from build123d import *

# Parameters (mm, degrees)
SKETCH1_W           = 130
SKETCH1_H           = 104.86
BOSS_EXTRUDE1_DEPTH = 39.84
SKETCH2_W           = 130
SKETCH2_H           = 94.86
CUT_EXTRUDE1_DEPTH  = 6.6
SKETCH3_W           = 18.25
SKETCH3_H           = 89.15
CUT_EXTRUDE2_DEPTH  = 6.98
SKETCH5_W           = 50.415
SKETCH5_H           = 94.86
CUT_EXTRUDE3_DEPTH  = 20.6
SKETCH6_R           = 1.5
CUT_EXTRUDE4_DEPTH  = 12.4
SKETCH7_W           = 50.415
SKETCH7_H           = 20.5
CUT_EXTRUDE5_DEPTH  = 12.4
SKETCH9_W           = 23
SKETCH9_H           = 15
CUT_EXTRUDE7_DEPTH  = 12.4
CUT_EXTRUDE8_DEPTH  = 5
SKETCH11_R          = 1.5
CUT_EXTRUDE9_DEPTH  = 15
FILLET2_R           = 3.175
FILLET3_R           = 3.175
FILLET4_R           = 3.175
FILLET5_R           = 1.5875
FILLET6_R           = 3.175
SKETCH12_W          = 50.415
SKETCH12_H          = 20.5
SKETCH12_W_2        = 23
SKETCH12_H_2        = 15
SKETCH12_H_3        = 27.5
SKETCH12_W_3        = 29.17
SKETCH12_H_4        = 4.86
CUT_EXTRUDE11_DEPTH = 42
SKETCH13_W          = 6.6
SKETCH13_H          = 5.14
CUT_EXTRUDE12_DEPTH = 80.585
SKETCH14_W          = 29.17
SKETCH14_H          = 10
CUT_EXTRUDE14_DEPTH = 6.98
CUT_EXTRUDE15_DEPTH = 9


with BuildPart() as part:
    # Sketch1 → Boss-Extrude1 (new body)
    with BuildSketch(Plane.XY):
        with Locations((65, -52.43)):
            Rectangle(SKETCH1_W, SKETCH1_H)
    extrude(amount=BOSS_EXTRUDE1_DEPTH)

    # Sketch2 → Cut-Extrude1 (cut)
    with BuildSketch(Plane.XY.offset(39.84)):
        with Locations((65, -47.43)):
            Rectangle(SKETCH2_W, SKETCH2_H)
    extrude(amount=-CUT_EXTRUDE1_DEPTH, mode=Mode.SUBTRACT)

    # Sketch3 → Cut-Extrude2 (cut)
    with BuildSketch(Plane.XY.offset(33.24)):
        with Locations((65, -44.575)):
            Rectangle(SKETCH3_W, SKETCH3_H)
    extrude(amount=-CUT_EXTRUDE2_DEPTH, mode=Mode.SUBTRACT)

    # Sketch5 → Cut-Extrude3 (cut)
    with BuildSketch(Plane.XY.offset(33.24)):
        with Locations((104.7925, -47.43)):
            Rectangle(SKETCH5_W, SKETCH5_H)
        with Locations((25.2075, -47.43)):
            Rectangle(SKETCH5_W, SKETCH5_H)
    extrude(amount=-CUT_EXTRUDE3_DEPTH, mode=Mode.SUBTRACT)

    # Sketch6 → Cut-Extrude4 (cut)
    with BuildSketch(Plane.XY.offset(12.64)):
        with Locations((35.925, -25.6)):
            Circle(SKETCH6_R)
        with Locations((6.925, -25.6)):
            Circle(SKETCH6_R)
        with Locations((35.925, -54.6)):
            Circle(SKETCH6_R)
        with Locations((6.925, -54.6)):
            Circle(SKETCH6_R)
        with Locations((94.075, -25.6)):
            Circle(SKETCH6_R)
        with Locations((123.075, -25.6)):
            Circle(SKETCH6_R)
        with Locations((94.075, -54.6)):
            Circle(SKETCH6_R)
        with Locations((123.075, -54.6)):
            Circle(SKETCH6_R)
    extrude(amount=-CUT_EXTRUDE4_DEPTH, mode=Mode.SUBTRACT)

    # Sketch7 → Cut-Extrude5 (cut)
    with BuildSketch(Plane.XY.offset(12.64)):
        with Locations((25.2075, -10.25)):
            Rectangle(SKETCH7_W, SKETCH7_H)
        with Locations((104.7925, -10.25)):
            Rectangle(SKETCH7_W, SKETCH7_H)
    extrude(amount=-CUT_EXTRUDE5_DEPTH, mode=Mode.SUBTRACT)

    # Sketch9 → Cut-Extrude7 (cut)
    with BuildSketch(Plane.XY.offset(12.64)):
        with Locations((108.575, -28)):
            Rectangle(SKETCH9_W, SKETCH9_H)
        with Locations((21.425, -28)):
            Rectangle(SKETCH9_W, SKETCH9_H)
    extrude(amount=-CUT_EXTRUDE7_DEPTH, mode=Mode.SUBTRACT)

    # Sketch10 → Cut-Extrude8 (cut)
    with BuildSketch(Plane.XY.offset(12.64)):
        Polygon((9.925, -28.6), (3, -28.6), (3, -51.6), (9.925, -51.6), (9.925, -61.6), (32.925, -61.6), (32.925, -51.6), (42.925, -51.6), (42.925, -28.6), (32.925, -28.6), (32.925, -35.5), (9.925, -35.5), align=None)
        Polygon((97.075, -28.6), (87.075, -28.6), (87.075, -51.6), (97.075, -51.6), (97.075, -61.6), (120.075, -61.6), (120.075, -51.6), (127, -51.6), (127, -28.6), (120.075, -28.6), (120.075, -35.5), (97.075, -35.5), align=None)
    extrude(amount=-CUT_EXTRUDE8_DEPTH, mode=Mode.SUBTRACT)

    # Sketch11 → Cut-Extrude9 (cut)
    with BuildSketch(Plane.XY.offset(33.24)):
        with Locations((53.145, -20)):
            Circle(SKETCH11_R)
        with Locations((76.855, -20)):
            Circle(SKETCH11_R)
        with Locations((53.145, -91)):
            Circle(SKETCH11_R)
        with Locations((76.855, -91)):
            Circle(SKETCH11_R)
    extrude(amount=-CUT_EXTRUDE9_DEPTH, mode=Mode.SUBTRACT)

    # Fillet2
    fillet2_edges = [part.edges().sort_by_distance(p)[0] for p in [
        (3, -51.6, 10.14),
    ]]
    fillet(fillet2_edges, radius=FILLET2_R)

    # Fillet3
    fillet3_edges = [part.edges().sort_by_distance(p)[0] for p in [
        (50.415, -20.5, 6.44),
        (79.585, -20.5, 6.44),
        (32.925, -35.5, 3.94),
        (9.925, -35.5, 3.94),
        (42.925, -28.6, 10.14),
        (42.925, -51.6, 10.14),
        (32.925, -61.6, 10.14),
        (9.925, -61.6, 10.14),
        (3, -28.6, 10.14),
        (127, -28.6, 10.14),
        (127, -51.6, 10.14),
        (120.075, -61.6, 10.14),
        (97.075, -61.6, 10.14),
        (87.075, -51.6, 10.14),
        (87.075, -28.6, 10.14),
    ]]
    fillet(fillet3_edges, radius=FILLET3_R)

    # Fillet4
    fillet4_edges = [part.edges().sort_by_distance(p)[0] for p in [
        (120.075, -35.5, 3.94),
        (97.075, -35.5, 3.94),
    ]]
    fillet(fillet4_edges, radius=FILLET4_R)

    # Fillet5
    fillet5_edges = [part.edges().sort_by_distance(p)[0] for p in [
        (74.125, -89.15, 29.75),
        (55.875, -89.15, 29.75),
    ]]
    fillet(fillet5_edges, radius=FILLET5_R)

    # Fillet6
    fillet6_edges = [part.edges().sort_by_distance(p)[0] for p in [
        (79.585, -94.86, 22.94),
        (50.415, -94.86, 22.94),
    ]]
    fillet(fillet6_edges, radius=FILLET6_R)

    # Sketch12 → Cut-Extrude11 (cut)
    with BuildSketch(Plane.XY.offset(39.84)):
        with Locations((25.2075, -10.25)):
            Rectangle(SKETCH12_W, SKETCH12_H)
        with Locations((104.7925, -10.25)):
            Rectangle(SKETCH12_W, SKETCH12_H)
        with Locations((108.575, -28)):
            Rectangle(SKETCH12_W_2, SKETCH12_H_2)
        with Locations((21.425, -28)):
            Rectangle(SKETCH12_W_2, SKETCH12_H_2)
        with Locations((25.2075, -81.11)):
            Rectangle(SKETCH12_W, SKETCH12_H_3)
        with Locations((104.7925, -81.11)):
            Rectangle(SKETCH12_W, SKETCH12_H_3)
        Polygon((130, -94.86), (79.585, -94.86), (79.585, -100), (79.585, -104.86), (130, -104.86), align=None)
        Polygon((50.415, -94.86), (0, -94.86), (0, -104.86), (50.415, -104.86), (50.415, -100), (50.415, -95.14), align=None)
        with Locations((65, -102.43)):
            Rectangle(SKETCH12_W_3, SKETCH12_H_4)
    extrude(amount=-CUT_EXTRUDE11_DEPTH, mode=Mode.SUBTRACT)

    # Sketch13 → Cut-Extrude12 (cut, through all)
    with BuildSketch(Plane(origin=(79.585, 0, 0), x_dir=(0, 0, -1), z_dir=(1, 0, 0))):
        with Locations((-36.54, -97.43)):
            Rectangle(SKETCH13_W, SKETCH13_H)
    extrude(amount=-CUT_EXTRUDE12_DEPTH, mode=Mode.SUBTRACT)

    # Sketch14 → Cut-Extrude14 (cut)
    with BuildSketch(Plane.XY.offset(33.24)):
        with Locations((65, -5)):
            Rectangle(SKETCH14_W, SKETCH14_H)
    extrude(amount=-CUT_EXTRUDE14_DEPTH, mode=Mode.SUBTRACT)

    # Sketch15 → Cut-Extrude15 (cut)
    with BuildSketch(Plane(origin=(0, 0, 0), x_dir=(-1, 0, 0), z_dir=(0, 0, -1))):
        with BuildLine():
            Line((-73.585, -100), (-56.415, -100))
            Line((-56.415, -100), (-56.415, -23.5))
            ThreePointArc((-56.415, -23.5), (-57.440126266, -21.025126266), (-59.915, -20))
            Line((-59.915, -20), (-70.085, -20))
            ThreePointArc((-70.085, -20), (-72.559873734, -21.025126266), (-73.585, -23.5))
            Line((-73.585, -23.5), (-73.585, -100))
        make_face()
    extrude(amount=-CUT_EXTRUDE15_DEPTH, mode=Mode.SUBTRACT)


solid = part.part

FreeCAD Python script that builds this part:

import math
import FreeCAD as App
import Part
import Sketcher

V = App.Vector
Q = App.Units.Quantity


def edges_at(feature, points):
    """Names of the edges that pass closest to the given points."""
    edges = feature.Shape.Edges
    near = lambda p: min(range(len(edges)), key=lambda i: edges[i].distToShape(Part.Vertex(*p))[0])
    return sorted({f"Edge{near(p) + 1}" for p in points})

doc = App.newDocument("Part")
params = doc.addObject("Spreadsheet::Sheet", "Params")
for row, (alias, value) in enumerate([
    ("sketch1_width", "130 mm"),
    ("sketch1_height", "104.86 mm"),
    ("pad1_length", "39.84 mm"),
    ("sketch2_width", "130 mm"),
    ("sketch2_height", "94.86 mm"),
    ("pocket1_length", "6.6 mm"),
    ("sketch3_width", "18.25 mm"),
    ("sketch3_height", "89.15 mm"),
    ("pocket2_length", "6.98 mm"),
    ("sketch4_height", "94.86 mm"),
    ("pocket3_length", "20.6 mm"),
    ("sketch5_diameter", "3 mm"),
    ("pocket4_length", "12.4 mm"),
    ("sketch6_height", "20.5 mm"),
    ("pocket5_length", "12.4 mm"),
    ("sketch7_width", "23 mm"),
    ("sketch7_height", "15 mm"),
    ("pocket6_length", "12.4 mm"),
    ("sketch8_width", "23 mm"),
    ("sketch8_width2", "10 mm"),
    ("sketch8_height", "6.9 mm"),
    ("pocket7_length", "5 mm"),
    ("sketch9_diameter", "3 mm"),
    ("pocket8_length", "15 mm"),
    ("fillet_radius", "3.175 mm"),
    ("fillet2_radius", "3.175 mm"),
    ("fillet3_radius", "3.175 mm"),
    ("fillet4_radius", "1.5875 mm"),
    ("fillet5_radius", "3.175 mm"),
    ("sketch10_width", "23 mm"),
    ("sketch10_width2", "130 mm"),
    ("sketch10_height", "15 mm"),
    ("sketch10_height2", "20.5 mm"),
    ("sketch10_height3", "37.5 mm"),
    ("pocket9_length", "42 mm"),
    ("sketch11_height", "6.6 mm"),
    ("sketch11_width", "5.14 mm"),
    ("sketch12_height", "10 mm"),
    ("sketch12_width", "29.17 mm"),
    ("pocket11_length", "6.98 mm"),
    ("sketch13_radius", "3.5 mm"),
    ("sketch13_height", "76.5 mm"),
    ("sketch13_width", "17.17 mm"),
    ("pocket12_length", "9 mm"),
], start=1):
    params.set(f"A{row}", alias)
    params.set(f"B{row}", "=" + value)
    params.setAlias(f"B{row}", alias)

body = doc.addObject("PartDesign::Body", "Body")

sketch1 = doc.addObject("Sketcher::SketchObject", "Sketch")
body.addObject(sketch1)
sketch1.AttachmentSupport = (doc.XY_Plane, [""])
sketch1.MapMode = "FlatFace"
sketch1.addGeometry(Part.LineSegment(V(0, 0, 0), V(0, -105, 0)), False)
sketch1.addGeometry(Part.LineSegment(V(0, -105, 0), V(130, -105, 0)), False)
sketch1.addGeometry(Part.LineSegment(V(130, -105, 0), V(130, 0, 0)), False)
sketch1.addGeometry(Part.LineSegment(V(130, 0, 0), V(0, 0, 0)), False)
sketch1.addConstraint(Sketcher.Constraint("Coincident", 0, 2, 1, 1))
sketch1.addConstraint(Sketcher.Constraint("Coincident", 1, 2, 2, 1))
sketch1.addConstraint(Sketcher.Constraint("Coincident", 2, 2, 3, 1))
sketch1.addConstraint(Sketcher.Constraint("Coincident", 3, 2, 0, 1))
sketch1.addConstraint(Sketcher.Constraint("Vertical", 0))
sketch1.addConstraint(Sketcher.Constraint("Horizontal", 1))
sketch1.addConstraint(Sketcher.Constraint("Vertical", 2))
sketch1.addConstraint(Sketcher.Constraint("Horizontal", 3))
sketch1.addConstraint(Sketcher.Constraint("Coincident", 3, 2, -1, 1))
sketch1.addConstraint(Sketcher.Constraint("DistanceX", 1, 1, 1, 2, Q("130 mm")))
sketch1.addConstraint(Sketcher.Constraint("DistanceY", 0, 2, 0, 1, Q("104.86 mm")))
sketch1.setExpression("Constraints[9]", "Params.sketch1_width")
sketch1.setExpression("Constraints[10]", "Params.sketch1_height")
pad1 = doc.addObject("PartDesign::Pad", "Pad")
body.addObject(pad1)
pad1.Profile = sketch1
pad1.setExpression("Length", "Params.pad1_length")

sketch2 = doc.addObject("Sketcher::SketchObject", "Sketch001")
body.addObject(sketch2)
sketch2.AttachmentSupport = (doc.XY_Plane, [""])
sketch2.MapMode = "FlatFace"
sketch2.AttachmentOffset = App.Placement(V(0, 0, 39.84), App.Rotation())
sketch2.addGeometry(Part.LineSegment(V(0, 0, 0), V(0, -95, 0)), False)
sketch2.addGeometry(Part.LineSegment(V(0, -95, 0), V(130, -95, 0)), False)
sketch2.addGeometry(Part.LineSegment(V(130, -95, 0), V(130, 0, 0)), False)
sketch2.addGeometry(Part.LineSegment(V(130, 0, 0), V(0, 0, 0)), False)
sketch2.addConstraint(Sketcher.Constraint("Coincident", 0, 2, 1, 1))
sketch2.addConstraint(Sketcher.Constraint("Coincident", 1, 2, 2, 1))
sketch2.addConstraint(Sketcher.Constraint("Coincident", 2, 2, 3, 1))
sketch2.addConstraint(Sketcher.Constraint("Coincident", 3, 2, 0, 1))
sketch2.addConstraint(Sketcher.Constraint("Vertical", 0))
sketch2.addConstraint(Sketcher.Constraint("Horizontal", 1))
sketch2.addConstraint(Sketcher.Constraint("Vertical", 2))
sketch2.addConstraint(Sketcher.Constraint("Horizontal", 3))
sketch2.addConstraint(Sketcher.Constraint("Coincident", 3, 2, -1, 1))
sketch2.addConstraint(Sketcher.Constraint("DistanceX", 1, 1, 1, 2, Q("130 mm")))
sketch2.addConstraint(Sketcher.Constraint("DistanceY", 0, 2, 0, 1, Q("94.86 mm")))
sketch2.setExpression("Constraints[9]", "Params.sketch2_width")
sketch2.setExpression("Constraints[10]", "Params.sketch2_height")
pocket1 = doc.addObject("PartDesign::Pocket", "Pocket")
body.addObject(pocket1)
pocket1.Profile = sketch2
pocket1.setExpression("Length", "Params.pocket1_length")

sketch3 = doc.addObject("Sketcher::SketchObject", "Sketch002")
body.addObject(sketch3)
sketch3.AttachmentSupport = (doc.XY_Plane, [""])
sketch3.MapMode = "FlatFace"
sketch3.AttachmentOffset = App.Placement(V(0, 0, 33.24), App.Rotation())
sketch3.addGeometry(Part.LineSegment(V(56, 0, 0), V(56, -89, 0)), False)
sketch3.addGeometry(Part.LineSegment(V(56, -89, 0), V(74, -89, 0)), False)
sketch3.addGeometry(Part.LineSegment(V(74, -89, 0), V(74, 0, 0)), False)
sketch3.addGeometry(Part.LineSegment(V(74, 0, 0), V(56, 0, 0)), False)
sketch3.addConstraint(Sketcher.Constraint("Coincident", 0, 2, 1, 1))
sketch3.addConstraint(Sketcher.Constraint("Coincident", 1, 2, 2, 1))
sketch3.addConstraint(Sketcher.Constraint("Coincident", 2, 2, 3, 1))
sketch3.addConstraint(Sketcher.Constraint("Coincident", 3, 2, 0, 1))
sketch3.addConstraint(Sketcher.Constraint("Vertical", 0))
sketch3.addConstraint(Sketcher.Constraint("Horizontal", 1))
sketch3.addConstraint(Sketcher.Constraint("Vertical", 2))
sketch3.addConstraint(Sketcher.Constraint("Horizontal", 3))
sketch3.addConstraint(Sketcher.Constraint("PointOnObject", 2, 2, -1))
sketch3.addConstraint(Sketcher.Constraint("DistanceX", 1, 1, 1, 2, Q("18.25 mm")))
sketch3.addConstraint(Sketcher.Constraint("DistanceY", 0, 2, 0, 1, Q("89.15 mm")))
sketch3.addConstraint(Sketcher.Constraint("DistanceX", -1, 1, 0, 2, Q("55.875 mm")))
sketch3.setExpression("Constraints[9]", "Params.sketch3_width")
sketch3.setExpression("Constraints[10]", "Params.sketch3_height")
pocket2 = doc.addObject("PartDesign::Pocket", "Pocket001")
body.addObject(pocket2)
pocket2.Profile = sketch3
pocket2.setExpression("Length", "Params.pocket2_length")

sketch4 = doc.addObject("Sketcher::SketchObject", "Sketch003")
body.addObject(sketch4)
sketch4.AttachmentSupport = (doc.XY_Plane, [""])
sketch4.MapMode = "FlatFace"
sketch4.AttachmentOffset = App.Placement(V(0, 0, 33.24), App.Rotation())
sketch4.addGeometry(Part.LineSegment(V(80, 0, 0), V(80, -95, 0)), False)
sketch4.addGeometry(Part.LineSegment(V(80, -95, 0), V(130, -95, 0)), False)
sketch4.addGeometry(Part.LineSegment(V(130, -95, 0), V(130, 0, 0)), False)
sketch4.addGeometry(Part.LineSegment(V(130, 0, 0), V(80, 0, 0)), False)
sketch4.addGeometry(Part.LineSegment(V(0, 0, 0), V(0, -95, 0)), False)
sketch4.addGeometry(Part.LineSegment(V(0, -95, 0), V(50, -95, 0)), False)
sketch4.addGeometry(Part.LineSegment(V(50, -95, 0), V(50, 0, 0)), False)
sketch4.addGeometry(Part.LineSegment(V(50, 0, 0), V(0, 0, 0)), False)
sketch4.addConstraint(Sketcher.Constraint("Coincident", 0, 2, 1, 1))
sketch4.addConstraint(Sketcher.Constraint("Coincident", 1, 2, 2, 1))
sketch4.addConstraint(Sketcher.Constraint("Coincident", 2, 2, 3, 1))
sketch4.addConstraint(Sketcher.Constraint("Coincident", 3, 2, 0, 1))
sketch4.addConstraint(Sketcher.Constraint("Coincident", 4, 2, 5, 1))
sketch4.addConstraint(Sketcher.Constraint("Coincident", 5, 2, 6, 1))
sketch4.addConstraint(Sketcher.Constraint("Coincident", 6, 2, 7, 1))
sketch4.addConstraint(Sketcher.Constraint("Coincident", 7, 2, 4, 1))
sketch4.addConstraint(Sketcher.Constraint("Vertical", 0))
sketch4.addConstraint(Sketcher.Constraint("Horizontal", 1))
sketch4.addConstraint(Sketcher.Constraint("Vertical", 2))
sketch4.addConstraint(Sketcher.Constraint("Horizontal", 3))
sketch4.addConstraint(Sketcher.Constraint("Vertical", 4))
sketch4.addConstraint(Sketcher.Constraint("Horizontal", 5))
sketch4.addConstraint(Sketcher.Constraint("Vertical", 6))
sketch4.addConstraint(Sketcher.Constraint("Horizontal", 7))
sketch4.addConstraint(Sketcher.Constraint("Coincident", 7, 2, -1, 1))
sketch4.addConstraint(Sketcher.Constraint("PointOnObject", 2, 2, -1))
sketch4.addConstraint(Sketcher.Constraint("Horizontal", 1, 2, 4, 2))
sketch4.addConstraint(Sketcher.Constraint("Equal", 3, 5))
sketch4.addConstraint(Sketcher.Constraint("DistanceX", -1, 1, 1, 2, Q("130 mm")))
sketch4.addConstraint(Sketcher.Constraint("DistanceY", 0, 2, 0, 1, Q("94.86 mm")))
sketch4.addConstraint(Sketcher.Constraint("DistanceX", 1, 1, 1, 2, Q("50.415 mm")))
sketch4.setExpression("Constraints[21]", "Params.sketch4_height")
pocket3 = doc.addObject("PartDesign::Pocket", "Pocket002")
body.addObject(pocket3)
pocket3.Profile = sketch4
pocket3.setExpression("Length", "Params.pocket3_length")

sketch5 = doc.addObject("Sketcher::SketchObject", "Sketch004")
body.addObject(sketch5)
sketch5.AttachmentSupport = (doc.XY_Plane, [""])
sketch5.MapMode = "FlatFace"
sketch5.AttachmentOffset = App.Placement(V(0, 0, 12.64), App.Rotation())
sketch5.addGeometry(Part.Circle(V(35.9, -25.6, 0), V(0, 0, 1), 1.5), False)
sketch5.addGeometry(Part.Circle(V(6.9, -25.6, 0), V(0, 0, 1), 1.5), False)
sketch5.addGeometry(Part.Circle(V(35.9, -54.6, 0), V(0, 0, 1), 1.5), False)
sketch5.addGeometry(Part.Circle(V(6.9, -54.6, 0), V(0, 0, 1), 1.5), False)
sketch5.addGeometry(Part.Circle(V(94.1, -25.6, 0), V(0, 0, 1), 1.5), False)
sketch5.addGeometry(Part.Circle(V(123.1, -25.6, 0), V(0, 0, 1), 1.5), False)
sketch5.addGeometry(Part.Circle(V(94.1, -54.6, 0), V(0, 0, 1), 1.5), False)
sketch5.addGeometry(Part.Circle(V(123.1, -54.6, 0), V(0, 0, 1), 1.5), False)
sketch5.addConstraint(Sketcher.Constraint("Equal", 0, 1))
sketch5.addConstraint(Sketcher.Constraint("Equal", 1, 2))
sketch5.addConstraint(Sketcher.Constraint("Equal", 2, 3))
sketch5.addConstraint(Sketcher.Constraint("Equal", 3, 4))
sketch5.addConstraint(Sketcher.Constraint("Equal", 4, 5))
sketch5.addConstraint(Sketcher.Constraint("Equal", 5, 6))
sketch5.addConstraint(Sketcher.Constraint("Equal", 6, 7))
sketch5.addConstraint(Sketcher.Constraint("Horizontal", 0, 3, 1, 3))
sketch5.addConstraint(Sketcher.Constraint("Horizontal", 2, 3, 3, 3))
sketch5.addConstraint(Sketcher.Constraint("Horizontal", 1, 3, 4, 3))
sketch5.addConstraint(Sketcher.Constraint("Horizontal", 4, 3, 5, 3))
sketch5.addConstraint(Sketcher.Constraint("Horizontal", 3, 3, 6, 3))
sketch5.addConstraint(Sketcher.Constraint("Horizontal", 6, 3, 7, 3))
sketch5.addConstraint(Sketcher.Constraint("Vertical", 0, 3, 2, 3))
sketch5.addConstraint(Sketcher.Constraint("Vertical", 1, 3, 3, 3))
sketch5.addConstraint(Sketcher.Constraint("Vertical", 4, 3, 6, 3))
sketch5.addConstraint(Sketcher.Constraint("Vertical", 5, 3, 7, 3))
sketch5.addConstraint(Sketcher.Constraint("Diameter", 0, Q("3 mm")))
sketch5.addConstraint(Sketcher.Constraint("DistanceX", 1, 3, 0, 3, Q("29 mm")))
sketch5.addConstraint(Sketcher.Constraint("DistanceY", 2, 3, 0, 3, Q("29 mm")))
sketch5.addConstraint(Sketcher.Constraint("DistanceX", 4, 3, 5, 3, Q("29 mm")))
sketch5.addConstraint(Sketcher.Constraint("DistanceY", 0, 3, -1, 1, Q("25.6 mm")))
sketch5.addConstraint(Sketcher.Constraint("DistanceX", 0, 3, 4, 3, Q("58.15 mm")))
sketch5.addConstraint(Sketcher.Constraint("DistanceX", -1, 1, 0, 3, Q("35.925 mm")))
sketch5.setExpression("Constraints[17]", "Params.sketch5_diameter")
pocket4 = doc.addObject("PartDesign::Pocket", "Pocket003")
body.addObject(pocket4)
pocket4.Profile = sketch5
pocket4.setExpression("Length", "Params.pocket4_length")

sketch6 = doc.addObject("Sketcher::SketchObject", "Sketch005")
body.addObject(sketch6)
sketch6.AttachmentSupport = (doc.XY_Plane, [""])
sketch6.MapMode = "FlatFace"
sketch6.AttachmentOffset = App.Placement(V(0, 0, 12.64), App.Rotation())
sketch6.addGeometry(Part.LineSegment(V(0, 0, 0), V(0, -20, 0)), False)
sketch6.addGeometry(Part.LineSegment(V(0, -20, 0), V(50, -20, 0)), False)
sketch6.addGeometry(Part.LineSegment(V(50, -20, 0), V(50, 0, 0)), False)
sketch6.addGeometry(Part.LineSegment(V(50, 0, 0), V(0, 0, 0)), False)
sketch6.addGeometry(Part.LineSegment(V(80, 0, 0), V(80, -20, 0)), False)
sketch6.addGeometry(Part.LineSegment(V(80, -20, 0), V(130, -20, 0)), False)
sketch6.addGeometry(Part.LineSegment(V(130, -20, 0), V(130, 0, 0)), False)
sketch6.addGeometry(Part.LineSegment(V(130, 0, 0), V(80, 0, 0)), False)
sketch6.addConstraint(Sketcher.Constraint("Coincident", 0, 2, 1, 1))
sketch6.addConstraint(Sketcher.Constraint("Coincident", 1, 2, 2, 1))
sketch6.addConstraint(Sketcher.Constraint("Coincident", 2, 2, 3, 1))
sketch6.addConstraint(Sketcher.Constraint("Coincident", 3, 2, 0, 1))
sketch6.addConstraint(Sketcher.Constraint("Coincident", 4, 2, 5, 1))
sketch6.addConstraint(Sketcher.Constraint("Coincident", 5, 2, 6, 1))
sketch6.addConstraint(Sketcher.Constraint("Coincident", 6, 2, 7, 1))
sketch6.addConstraint(Sketcher.Constraint("Coincident", 7, 2, 4, 1))
sketch6.addConstraint(Sketcher.Constraint("Vertical", 0))
sketch6.addConstraint(Sketcher.Constraint("Horizontal", 1))
sketch6.addConstraint(Sketcher.Constraint("Vertical", 2))
sketch6.addConstraint(Sketcher.Constraint("Horizontal", 3))
sketch6.addConstraint(Sketcher.Constraint("Vertical", 4))
sketch6.addConstraint(Sketcher.Constraint("Horizontal", 5))
sketch6.addConstraint(Sketcher.Constraint("Vertical", 6))
sketch6.addConstraint(Sketcher.Constraint("Horizontal", 7))
sketch6.addConstraint(Sketcher.Constraint("Coincident", 3, 2, -1, 1))
sketch6.addConstraint(Sketcher.Constraint("PointOnObject", 6, 2, -1))
sketch6.addConstraint(Sketcher.Constraint("Horizontal", 1, 2, 4, 2))
sketch6.addConstraint(Sketcher.Constraint("Equal", 3, 5))
sketch6.addConstraint(Sketcher.Constraint("DistanceY", 0, 2, 0, 1, Q("20.5 mm")))
sketch6.addConstraint(Sketcher.Constraint("DistanceX", -1, 1, 5, 2, Q("130 mm")))
sketch6.addConstraint(Sketcher.Constraint("DistanceX", 1, 1, 1, 2, Q("50.415 mm")))
sketch6.setExpression("Constraints[20]", "Params.sketch6_height")
pocket5 = doc.addObject("PartDesign::Pocket", "Pocket004")
body.addObject(pocket5)
pocket5.Profile = sketch6
pocket5.setExpression("Length", "Params.pocket5_length")

sketch7 = doc.addObject("Sketcher::SketchObject", "Sketch006")
body.addObject(sketch7)
sketch7.AttachmentSupport = (doc.XY_Plane, [""])
sketch7.MapMode = "FlatFace"
sketch7.AttachmentOffset = App.Placement(V(0, 0, 12.64), App.Rotation())
sketch7.addGeometry(Part.LineSegment(V(97, -20, 0), V(97, -36, 0)), False)
sketch7.addGeometry(Part.LineSegment(V(97, -36, 0), V(120, -36, 0)), False)
sketch7.addGeometry(Part.LineSegment(V(120, -36, 0), V(120, -20, 0)), False)
sketch7.addGeometry(Part.LineSegment(V(120, -20, 0), V(97, -20, 0)), False)
sketch7.addGeometry(Part.LineSegment(V(10, -20, 0), V(10, -36, 0)), False)
sketch7.addGeometry(Part.LineSegment(V(10, -36, 0), V(33, -36, 0)), False)
sketch7.addGeometry(Part.LineSegment(V(33, -36, 0), V(33, -20, 0)), False)
sketch7.addGeometry(Part.LineSegment(V(33, -20, 0), V(10, -20, 0)), False)
sketch7.addConstraint(Sketcher.Constraint("Coincident", 0, 2, 1, 1))
sketch7.addConstraint(Sketcher.Constraint("Coincident", 1, 2, 2, 1))
sketch7.addConstraint(Sketcher.Constraint("Coincident", 2, 2, 3, 1))
sketch7.addConstraint(Sketcher.Constraint("Coincident", 3, 2, 0, 1))
sketch7.addConstraint(Sketcher.Constraint("Coincident", 4, 2, 5, 1))
sketch7.addConstraint(Sketcher.Constraint("Coincident", 5, 2, 6, 1))
sketch7.addConstraint(Sketcher.Constraint("Coincident", 6, 2, 7, 1))
sketch7.addConstraint(Sketcher.Constraint("Coincident", 7, 2, 4, 1))
sketch7.addConstraint(Sketcher.Constraint("Vertical", 0))
sketch7.addConstraint(Sketcher.Constraint("Horizontal", 1))
sketch7.addConstraint(Sketcher.Constraint("Vertical", 2))
sketch7.addConstraint(Sketcher.Constraint("Horizontal", 3))
sketch7.addConstraint(Sketcher.Constraint("Vertical", 4))
sketch7.addConstraint(Sketcher.Constraint("Horizontal", 5))
sketch7.addConstraint(Sketcher.Constraint("Vertical", 6))
sketch7.addConstraint(Sketcher.Constraint("Horizontal", 7))
sketch7.addConstraint(Sketcher.Constraint("Horizontal", 1, 2, 4, 2))
sketch7.addConstraint(Sketcher.Constraint("Horizontal", 3, 2, 6, 2))
sketch7.addConstraint(Sketcher.Constraint("Equal", 3, 5))
sketch7.addConstraint(Sketcher.Constraint("DistanceX", 1, 1, 1, 2, Q("23 mm")))
sketch7.addConstraint(Sketcher.Constraint("DistanceY", 0, 2, 0, 1, Q("15 mm")))
sketch7.addConstraint(Sketcher.Constraint("DistanceY", 0, 2, -1, 1, Q("35.5 mm")))
sketch7.addConstraint(Sketcher.Constraint("DistanceX", 4, 2, 0, 2, Q("87.15 mm")))
sketch7.addConstraint(Sketcher.Constraint("DistanceX", -1, 1, 0, 2, Q("97.075 mm")))
sketch7.setExpression("Constraints[19]", "Params.sketch7_width")
sketch7.setExpression("Constraints[20]", "Params.sketch7_height")
pocket6 = doc.addObject("PartDesign::Pocket", "Pocket005")
body.addObject(pocket6)
pocket6.Profile = sketch7
pocket6.setExpression("Length", "Params.pocket6_length")

sketch8 = doc.addObject("Sketcher::SketchObject", "Sketch007")
body.addObject(sketch8)
sketch8.AttachmentSupport = (doc.XY_Plane, [""])
sketch8.MapMode = "FlatFace"
sketch8.AttachmentOffset = App.Placement(V(0, 0, 12.64), App.Rotation())
sketch8.addGeometry(Part.LineSegment(V(10, -29, 0), V(3, -29, 0)), False)
sketch8.addGeometry(Part.LineSegment(V(3, -29, 0), V(3, -52, 0)), False)
sketch8.addGeometry(Part.LineSegment(V(3, -52, 0), V(10, -52, 0)), False)
sketch8.addGeometry(Part.LineSegment(V(10, -52, 0), V(10, -62, 0)), False)
sketch8.addGeometry(Part.LineSegment(V(10, -62, 0), V(33, -62, 0)), False)
sketch8.addGeometry(Part.LineSegment(V(33, -62, 0), V(33, -52, 0)), False)
sketch8.addGeometry(Part.LineSegment(V(33, -52, 0), V(43, -52, 0)), False)
sketch8.addGeometry(Part.LineSegment(V(43, -52, 0), V(43, -29, 0)), False)
sketch8.addGeometry(Part.LineSegment(V(43, -29, 0), V(33, -29, 0)), False)
sketch8.addGeometry(Part.LineSegment(V(33, -29, 0), V(33, -36, 0)), False)
sketch8.addGeometry(Part.LineSegment(V(33, -36, 0), V(10, -36, 0)), False)
sketch8.addGeometry(Part.LineSegment(V(10, -36, 0), V(10, -29, 0)), False)
sketch8.addGeometry(Part.LineSegment(V(97, -29, 0), V(87, -29, 0)), False)
sketch8.addGeometry(Part.LineSegment(V(87, -29, 0), V(87, -52, 0)), False)
sketch8.addGeometry(Part.LineSegment(V(87, -52, 0), V(97, -52, 0)), False)
sketch8.addGeometry(Part.LineSegment(V(97, -52, 0), V(97, -62, 0)), False)
sketch8.addGeometry(Part.LineSegment(V(97, -62, 0), V(120, -62, 0)), False)
sketch8.addGeometry(Part.LineSegment(V(120, -62, 0), V(120, -52, 0)), False)
sketch8.addGeometry(Part.LineSegment(V(120, -52, 0), V(127, -52, 0)), False)
sketch8.addGeometry(Part.LineSegment(V(127, -52, 0), V(127, -29, 0)), False)
sketch8.addGeometry(Part.LineSegment(V(127, -29, 0), V(120, -29, 0)), False)
sketch8.addGeometry(Part.LineSegment(V(120, -29, 0), V(120, -36, 0)), False)
sketch8.addGeometry(Part.LineSegment(V(120, -36, 0), V(97, -36, 0)), False)
sketch8.addGeometry(Part.LineSegment(V(97, -36, 0), V(97, -29, 0)), False)
sketch8.addConstraint(Sketcher.Constraint("Coincident", 0, 2, 1, 1))
sketch8.addConstraint(Sketcher.Constraint("Coincident", 1, 2, 2, 1))
sketch8.addConstraint(Sketcher.Constraint("Coincident", 2, 2, 3, 1))
sketch8.addConstraint(Sketcher.Constraint("Coincident", 3, 2, 4, 1))
sketch8.addConstraint(Sketcher.Constraint("Coincident", 4, 2, 5, 1))
sketch8.addConstraint(Sketcher.Constraint("Coincident", 5, 2, 6, 1))
sketch8.addConstraint(Sketcher.Constraint("Coincident", 6, 2, 7, 1))
sketch8.addConstraint(Sketcher.Constraint("Coincident", 7, 2, 8, 1))
sketch8.addConstraint(Sketcher.Constraint("Coincident", 8, 2, 9, 1))
sketch8.addConstraint(Sketcher.Constraint("Coincident", 9, 2, 10, 1))
sketch8.addConstraint(Sketcher.Constraint("Coincident", 10, 2, 11, 1))
sketch8.addConstraint(Sketcher.Constraint("Coincident", 11, 2, 0, 1))
sketch8.addConstraint(Sketcher.Constraint("Coincident", 12, 2, 13, 1))
sketch8.addConstraint(Sketcher.Constraint("Coincident", 13, 2, 14, 1))
sketch8.addConstraint(Sketcher.Constraint("Coincident", 14, 2, 15, 1))
sketch8.addConstraint(Sketcher.Constraint("Coincident", 15, 2, 16, 1))
sketch8.addConstraint(Sketcher.Constraint("Coincident", 16, 2, 17, 1))
sketch8.addConstraint(Sketcher.Constraint("Coincident", 17, 2, 18, 1))
sketch8.addConstraint(Sketcher.Constraint("Coincident", 18, 2, 19, 1))
sketch8.addConstraint(Sketcher.Constraint("Coincident", 19, 2, 20, 1))
sketch8.addConstraint(Sketcher.Constraint("Coincident", 20, 2, 21, 1))
sketch8.addConstraint(Sketcher.Constraint("Coincident", 21, 2, 22, 1))
sketch8.addConstraint(Sketcher.Constraint("Coincident", 22, 2, 23, 1))
sketch8.addConstraint(Sketcher.Constraint("Coincident", 23, 2, 12, 1))
sketch8.addConstraint(Sketcher.Constraint("Horizontal", 0))
sketch8.addConstraint(Sketcher.Constraint("Vertical", 1))
sketch8.addConstraint(Sketcher.Constraint("Horizontal", 2))
sketch8.addConstraint(Sketcher.Constraint("Vertical", 3))
sketch8.addConstraint(Sketcher.Constraint("Horizontal", 4))
sketch8.addConstraint(Sketcher.Constraint("Vertical", 5))
sketch8.addConstraint(Sketcher.Constraint("Horizontal", 6))
sketch8.addConstraint(Sketcher.Constraint("Vertical", 7))
sketch8.addConstraint(Sketcher.Constraint("Horizontal", 8))
sketch8.addConstraint(Sketcher.Constraint("Vertical", 9))
sketch8.addConstraint(Sketcher.Constraint("Horizontal", 10))
sketch8.addConstraint(Sketcher.Constraint("Vertical", 11))
sketch8.addConstraint(Sketcher.Constraint("Horizontal", 12))
sketch8.addConstraint(Sketcher.Constraint("Vertical", 13))
sketch8.addConstraint(Sketcher.Constraint("Horizontal", 14))
sketch8.addConstraint(Sketcher.Constraint("Vertical", 15))
sketch8.addConstraint(Sketcher.Constraint("Horizontal", 16))
sketch8.addConstraint(Sketcher.Constraint("Vertical", 17))
sketch8.addConstraint(Sketcher.Constraint("Horizontal", 18))
sketch8.addConstraint(Sketcher.Constraint("Vertical", 19))
sketch8.addConstraint(Sketcher.Constraint("Horizontal", 20))
sketch8.addConstraint(Sketcher.Constraint("Vertical", 21))
sketch8.addConstraint(Sketcher.Constraint("Horizontal", 22))
sketch8.addConstraint(Sketcher.Constraint("Vertical", 23))
sketch8.addConstraint(Sketcher.Constraint("Horizontal", 2, 2, 5, 2))
sketch8.addConstraint(Sketcher.Constraint("Horizontal", 0, 2, 7, 2))
sketch8.addConstraint(Sketcher.Constraint("Horizontal", 11, 2, 12, 2))
sketch8.addConstraint(Sketcher.Constraint("Horizontal", 6, 2, 13, 2))
sketch8.addConstraint(Sketcher.Constraint("Horizontal", 4, 2, 15, 2))
sketch8.addConstraint(Sketcher.Constraint("Horizontal", 14, 2, 17, 2))
sketch8.addConstraint(Sketcher.Constraint("Horizontal", 12, 2, 19, 2))
sketch8.addConstraint(Sketcher.Constraint("Horizontal", 10, 2, 21, 2))
sketch8.addConstraint(Sketcher.Constraint("Vertical", 5, 2, 8, 2))
sketch8.addConstraint(Sketcher.Constraint("Vertical", 3, 2, 10, 2))
sketch8.addConstraint(Sketcher.Constraint("Vertical", 17, 2, 20, 2))
sketch8.addConstraint(Sketcher.Constraint("Vertical", 15, 2, 22, 2))
sketch8.addConstraint(Sketcher.Constraint("Equal", 8, 12))
sketch8.addConstraint(Sketcher.Constraint("Equal", 10, 16))
sketch8.addConstraint(Sketcher.Constraint("Equal", 2, 18))
sketch8.addConstraint(Sketcher.Constraint("Equal", 22, 1))
sketch8.addConstraint(Sketcher.Constraint("Equal", 14, 3))
sketch8.addConstraint(Sketcher.Constraint("DistanceX", 4, 1, 4, 2, Q("23 mm")))
sketch8.addConstraint(Sketcher.Constraint("DistanceX", 6, 1, 6, 2, Q("10 mm")))
sketch8.addConstraint(Sketcher.Constraint("DistanceY", 9, 2, 9, 1, Q("6.9 mm")))
sketch8.addConstraint(Sketcher.Constraint("DistanceX", -1, 1, 0, 2, Q("3 mm")))
sketch8.addConstraint(Sketcher.Constraint("DistanceX", -1, 1, 18, 2, Q("127 mm")))
sketch8.addConstraint(Sketcher.Constraint("DistanceY", 0, 2, -1, 1, Q("28.6 mm")))
sketch8.addConstraint(Sketcher.Constraint("DistanceX", 0, 2, 0, 1, Q("6.925 mm")))
sketch8.setExpression("Constraints[65]", "Params.sketch8_width")
sketch8.setExpression("Constraints[66]", "Params.sketch8_width2")
sketch8.setExpression("Constraints[67]", "Params.sketch8_height")
pocket7 = doc.addObject("PartDesign::Pocket", "Pocket006")
body.addObject(pocket7)
pocket7.Profile = sketch8
pocket7.setExpression("Length", "Params.pocket7_length")

sketch9 = doc.addObject("Sketcher::SketchObject", "Sketch008")
body.addObject(sketch9)
sketch9.AttachmentSupport = (doc.XY_Plane, [""])
sketch9.MapMode = "FlatFace"
sketch9.AttachmentOffset = App.Placement(V(0, 0, 33.24), App.Rotation())
sketch9.addGeometry(Part.Circle(V(53.1, -20, 0), V(0, 0, 1), 1.5), False)
sketch9.addGeometry(Part.Circle(V(76.9, -20, 0), V(0, 0, 1), 1.5), False)
sketch9.addGeometry(Part.Circle(V(53.1, -91, 0), V(0, 0, 1), 1.5), False)
sketch9.addGeometry(Part.Circle(V(76.9, -91, 0), V(0, 0, 1), 1.5), False)
sketch9.addConstraint(Sketcher.Constraint("Equal", 0, 1))
sketch9.addConstraint(Sketcher.Constraint("Equal", 1, 2))
sketch9.addConstraint(Sketcher.Constraint("Equal", 2, 3))
sketch9.addConstraint(Sketcher.Constraint("Horizontal", 0, 3, 1, 3))
sketch9.addConstraint(Sketcher.Constraint("Horizontal", 2, 3, 3, 3))
sketch9.addConstraint(Sketcher.Constraint("Vertical", 0, 3, 2, 3))
sketch9.addConstraint(Sketcher.Constraint("Vertical", 1, 3, 3, 3))
sketch9.addConstraint(Sketcher.Constraint("Diameter", 0, Q("3 mm")))
sketch9.addConstraint(Sketcher.Constraint("DistanceY", 0, 3, -1, 1, Q("20 mm")))
sketch9.addConstraint(Sketcher.Constraint("DistanceY", 2, 3, -1, 1, Q("91 mm")))
sketch9.addConstraint(Sketcher.Constraint("DistanceX", 0, 3, 1, 3, Q("23.71 mm")))
sketch9.addConstraint(Sketcher.Constraint("DistanceX", -1, 1, 0, 3, Q("53.145 mm")))
sketch9.setExpression("Constraints[7]", "Params.sketch9_diameter")
pocket8 = doc.addObject("PartDesign::Pocket", "Pocket007")
body.addObject(pocket8)
pocket8.Profile = sketch9
pocket8.setExpression("Length", "Params.pocket8_length")
doc.recompute()

fillet = doc.addObject("PartDesign::Fillet", "Fillet")
body.addObject(fillet)
fillet.Base = (pocket8, edges_at(pocket8, [(3, -51.6, 10.14)]))
fillet.setExpression("Radius", "Params.fillet_radius")
doc.recompute()

fillet2 = doc.addObject("PartDesign::Fillet", "Fillet001")
body.addObject(fillet2)
fillet2.Base = (fillet, edges_at(fillet, [
    (50.415, -20.5, 6.44),
    (79.585, -20.5, 6.44),
    (32.925, -35.5, 3.94),
    (9.925, -35.5, 3.94),
    (42.925, -28.6, 10.14),
    (42.925, -51.6, 10.14),
    (32.925, -61.6, 10.14),
    (9.925, -61.6, 10.14),
    (3, -28.6, 10.14),
    (127, -28.6, 10.14),
    (127, -51.6, 10.14),
    (120.075, -61.6, 10.14),
    (97.075, -61.6, 10.14),
    (87.075, -51.6, 10.14),
    (87.075, -28.6, 10.14),
]))
fillet2.setExpression("Radius", "Params.fillet2_radius")
doc.recompute()

fillet3 = doc.addObject("PartDesign::Fillet", "Fillet002")
body.addObject(fillet3)
fillet3.Base = (fillet2, edges_at(fillet2, [(120.075, -35.5, 3.94), (97.075, -35.5, 3.94)]))
fillet3.setExpression("Radius", "Params.fillet3_radius")
doc.recompute()

fillet4 = doc.addObject("PartDesign::Fillet", "Fillet003")
body.addObject(fillet4)
fillet4.Base = (fillet3, edges_at(fillet3, [(74.125, -89.15, 29.75), (55.875, -89.15, 29.75)]))
fillet4.setExpression("Radius", "Params.fillet4_radius")
doc.recompute()

fillet5 = doc.addObject("PartDesign::Fillet", "Fillet004")
body.addObject(fillet5)
fillet5.Base = (fillet4, edges_at(fillet4, [(79.585, -94.86, 22.94), (50.415, -94.86, 22.94)]))
fillet5.setExpression("Radius", "Params.fillet5_radius")

sketch10 = doc.addObject("Sketcher::SketchObject", "Sketch009")
body.addObject(sketch10)
sketch10.AttachmentSupport = (doc.XY_Plane, [""])
sketch10.MapMode = "FlatFace"
sketch10.AttachmentOffset = App.Placement(V(0, 0, 39.84), App.Rotation())
sketch10.addGeometry(Part.LineSegment(V(0, 0, 0), V(0, -20, 0)), False)
sketch10.addGeometry(Part.LineSegment(V(0, -20, 0), V(10, -20, 0)), False)
sketch10.addGeometry(Part.LineSegment(V(10, -20, 0), V(10, -36, 0)), False)
sketch10.addGeometry(Part.LineSegment(V(10, -36, 0), V(33, -36, 0)), False)
sketch10.addGeometry(Part.LineSegment(V(33, -36, 0), V(33, -20, 0)), False)
sketch10.addGeometry(Part.LineSegment(V(33, -20, 0), V(50, -20, 0)), False)
sketch10.addGeometry(Part.LineSegment(V(50, -20, 0), V(50, 0, 0)), False)
sketch10.addGeometry(Part.LineSegment(V(50, 0, 0), V(0, 0, 0)), False)
sketch10.addGeometry(Part.LineSegment(V(80, 0, 0), V(80, -20, 0)), False)
sketch10.addGeometry(Part.LineSegment(V(80, -20, 0), V(97, -20, 0)), False)
sketch10.addGeometry(Part.LineSegment(V(97, -20, 0), V(97, -36, 0)), False)
sketch10.addGeometry(Part.LineSegment(V(97, -36, 0), V(120, -36, 0)), False)
sketch10.addGeometry(Part.LineSegment(V(120, -36, 0), V(120, -20, 0)), False)
sketch10.addGeometry(Part.LineSegment(V(120, -20, 0), V(130, -20, 0)), False)
sketch10.addGeometry(Part.LineSegment(V(130, -20, 0), V(130, 0, 0)), False)
sketch10.addGeometry(Part.LineSegment(V(130, 0, 0), V(80, 0, 0)), False)
sketch10.addGeometry(Part.LineSegment(V(0, -67, 0), V(0, -105, 0)), False)
sketch10.addGeometry(Part.LineSegment(V(0, -105, 0), V(130, -105, 0)), False)
sketch10.addGeometry(Part.LineSegment(V(130, -105, 0), V(130, -67, 0)), False)
sketch10.addGeometry(Part.LineSegment(V(130, -67, 0), V(80, -67, 0)), False)
sketch10.addGeometry(Part.LineSegment(V(80, -67, 0), V(80, -100, 0)), False)
sketch10.addGeometry(Part.LineSegment(V(80, -100, 0), V(50, -100, 0)), False)
sketch10.addGeometry(Part.LineSegment(V(50, -100, 0), V(50, -67, 0)), False)
sketch10.addGeometry(Part.LineSegment(V(50, -67, 0), V(0, -67, 0)), False)
sketch10.addConstraint(Sketcher.Constraint("Coincident", 0, 2, 1, 1))
sketch10.addConstraint(Sketcher.Constraint("Coincident", 1, 2, 2, 1))
sketch10.addConstraint(Sketcher.Constraint("Coincident", 2, 2, 3, 1))
sketch10.addConstraint(Sketcher.Constraint("Coincident", 3, 2, 4, 1))
sketch10.addConstraint(Sketcher.Constraint("Coincident", 4, 2, 5, 1))
sketch10.addConstraint(Sketcher.Constraint("Coincident", 5, 2, 6, 1))
sketch10.addConstraint(Sketcher.Constraint("Coincident", 6, 2, 7, 1))
sketch10.addConstraint(Sketcher.Constraint("Coincident", 7, 2, 0, 1))
sketch10.addConstraint(Sketcher.Constraint("Coincident", 8, 2, 9, 1))
sketch10.addConstraint(Sketcher.Constraint("Coincident", 9, 2, 10, 1))
sketch10.addConstraint(Sketcher.Constraint("Coincident", 10, 2, 11, 1))
sketch10.addConstraint(Sketcher.Constraint("Coincident", 11, 2, 12, 1))
sketch10.addConstraint(Sketcher.Constraint("Coincident", 12, 2, 13, 1))
sketch10.addConstraint(Sketcher.Constraint("Coincident", 13, 2, 14, 1))
sketch10.addConstraint(Sketcher.Constraint("Coincident", 14, 2, 15, 1))
sketch10.addConstraint(Sketcher.Constraint("Coincident", 15, 2, 8, 1))
sketch10.addConstraint(Sketcher.Constraint("Coincident", 16, 2, 17, 1))
sketch10.addConstraint(Sketcher.Constraint("Coincident", 17, 2, 18, 1))
sketch10.addConstraint(Sketcher.Constraint("Coincident", 18, 2, 19, 1))
sketch10.addConstraint(Sketcher.Constraint("Coincident", 19, 2, 20, 1))
sketch10.addConstraint(Sketcher.Constraint("Coincident", 20, 2, 21, 1))
sketch10.addConstraint(Sketcher.Constraint("Coincident", 21, 2, 22, 1))
sketch10.addConstraint(Sketcher.Constraint("Coincident", 22, 2, 23, 1))
sketch10.addConstraint(Sketcher.Constraint("Coincident", 23, 2, 16, 1))
sketch10.addConstraint(Sketcher.Constraint("Vertical", 0))
sketch10.addConstraint(Sketcher.Constraint("Horizontal", 1))
sketch10.addConstraint(Sketcher.Constraint("Vertical", 2))
sketch10.addConstraint(Sketcher.Constraint("Horizontal", 3))
sketch10.addConstraint(Sketcher.Constraint("Vertical", 4))
sketch10.addConstraint(Sketcher.Constraint("Horizontal", 5))
sketch10.addConstraint(Sketcher.Constraint("Vertical", 6))
sketch10.addConstraint(Sketcher.Constraint("Horizontal", 7))
sketch10.addConstraint(Sketcher.Constraint("Vertical", 8))
sketch10.addConstraint(Sketcher.Constraint("Horizontal", 9))
sketch10.addConstraint(Sketcher.Constraint("Vertical", 10))
sketch10.addConstraint(Sketcher.Constraint("Horizontal", 11))
sketch10.addConstraint(Sketcher.Constraint("Vertical", 12))
sketch10.addConstraint(Sketcher.Constraint("Horizontal", 13))
sketch10.addConstraint(Sketcher.Constraint("Vertical", 14))
sketch10.addConstraint(Sketcher.Constraint("Horizontal", 15))
sketch10.addConstraint(Sketcher.Constraint("Vertical", 16))
sketch10.addConstraint(Sketcher.Constraint("Horizontal", 17))
sketch10.addConstraint(Sketcher.Constraint("Vertical", 18))
sketch10.addConstraint(Sketcher.Constraint("Horizontal", 19))
sketch10.addConstraint(Sketcher.Constraint("Vertical", 20))
sketch10.addConstraint(Sketcher.Constraint("Horizontal", 21))
sketch10.addConstraint(Sketcher.Constraint("Vertical", 22))
sketch10.addConstraint(Sketcher.Constraint("Horizontal", 23))
sketch10.addConstraint(Sketcher.Constraint("Coincident", 7, 2, -1, 1))
sketch10.addConstraint(Sketcher.Constraint("PointOnObject", 14, 2, -1))
sketch10.addConstraint(Sketcher.Constraint("PointOnObject", 16, 2, -2))
sketch10.addConstraint(Sketcher.Constraint("Horizontal", 1, 2, 4, 2))
sketch10.addConstraint(Sketcher.Constraint("Horizontal", 5, 2, 8, 2))
sketch10.addConstraint(Sketcher.Constraint("Horizontal", 3, 2, 10, 2))
sketch10.addConstraint(Sketcher.Constraint("Horizontal", 9, 2, 12, 2))
sketch10.addConstraint(Sketcher.Constraint("Horizontal", 19, 2, 22, 2))
sketch10.addConstraint(Sketcher.Constraint("Vertical", 14, 2, 17, 2))
sketch10.addConstraint(Sketcher.Constraint("Vertical", 15, 2, 19, 2))
sketch10.addConstraint(Sketcher.Constraint("Vertical", 6, 2, 21, 2))
sketch10.addConstraint(Sketcher.Constraint("Equal", 5, 9))
sketch10.addConstraint(Sketcher.Constraint("Equal", 3, 11))
sketch10.addConstraint(Sketcher.Constraint("Equal", 1, 13))
sketch10.addConstraint(Sketcher.Constraint("DistanceX", 3, 1, 3, 2, Q("23 mm")))
sketch10.addConstraint(Sketcher.Constraint("DistanceX", 17, 1, 17, 2, Q("130 mm")))
sketch10.addConstraint(Sketcher.Constraint("DistanceY", 2, 2, 2, 1, Q("15 mm")))
sketch10.addConstraint(Sketcher.Constraint("DistanceY", 0, 2, 0, 1, Q("20.5 mm")))
sketch10.addConstraint(Sketcher.Constraint("DistanceY", 16, 2, 16, 1, Q("37.5 mm")))
sketch10.addConstraint(Sketcher.Constraint("DistanceY", 20, 2, -1, 1, Q("100 mm")))
sketch10.addConstraint(Sketcher.Constraint("DistanceX", 5, 1, 5, 2, Q("17.49 mm")))
sketch10.addConstraint(Sketcher.Constraint("DistanceX", 21, 2, 21, 1, Q("29.17 mm")))
sketch10.addConstraint(Sketcher.Constraint("DistanceY", 20, 2, 20, 1, Q("32.64 mm")))
sketch10.setExpression("Constraints[62]", "Params.sketch10_width")
sketch10.setExpression("Constraints[63]", "Params.sketch10_width2")
sketch10.setExpression("Constraints[64]", "Params.sketch10_height")
sketch10.setExpression("Constraints[65]", "Params.sketch10_height2")
sketch10.setExpression("Constraints[66]", "Params.sketch10_height3")
pocket9 = doc.addObject("PartDesign::Pocket", "Pocket008")
body.addObject(pocket9)
pocket9.Profile = sketch10
pocket9.setExpression("Length", "Params.pocket9_length")

sketch11 = doc.addObject("Sketcher::SketchObject", "Sketch010")
body.addObject(sketch11)
sketch11.AttachmentSupport = (doc.YZ_Plane, [""])
sketch11.MapMode = "FlatFace"
sketch11.AttachmentOffset = App.Placement(V(0, 0, 79.585), App.Rotation())
sketch11.addGeometry(Part.LineSegment(V(-95, 40, 0), V(-100, 40, 0)), False)
sketch11.addGeometry(Part.LineSegment(V(-100, 40, 0), V(-100, 33, 0)), False)
sketch11.addGeometry(Part.LineSegment(V(-100, 33, 0), V(-95, 33, 0)), False)
sketch11.addGeometry(Part.LineSegment(V(-95, 33, 0), V(-95, 40, 0)), False)
sketch11.addConstraint(Sketcher.Constraint("Coincident", 0, 2, 1, 1))
sketch11.addConstraint(Sketcher.Constraint("Coincident", 1, 2, 2, 1))
sketch11.addConstraint(Sketcher.Constraint("Coincident", 2, 2, 3, 1))
sketch11.addConstraint(Sketcher.Constraint("Coincident", 3, 2, 0, 1))
sketch11.addConstraint(Sketcher.Constraint("Horizontal", 0))
sketch11.addConstraint(Sketcher.Constraint("Vertical", 1))
sketch11.addConstraint(Sketcher.Constraint("Horizontal", 2))
sketch11.addConstraint(Sketcher.Constraint("Vertical", 3))
sketch11.addConstraint(Sketcher.Constraint("DistanceY", 1, 2, 1, 1, Q("6.6 mm")))
sketch11.addConstraint(Sketcher.Constraint("DistanceX", 0, 2, -1, 1, Q("100 mm")))
sketch11.addConstraint(Sketcher.Constraint("DistanceX", 0, 2, 0, 1, Q("5.14 mm")))
sketch11.addConstraint(Sketcher.Constraint("DistanceY", -1, 1, 0, 2, Q("39.84 mm")))
sketch11.setExpression("Constraints[8]", "Params.sketch11_height")
sketch11.setExpression("Constraints[10]", "Params.sketch11_width")
pocket10 = doc.addObject("PartDesign::Pocket", "Pocket009")
body.addObject(pocket10)
pocket10.Profile = sketch11
pocket10.Type = "ThroughAll"

sketch12 = doc.addObject("Sketcher::SketchObject", "Sketch011")
body.addObject(sketch12)
sketch12.AttachmentSupport = (doc.XY_Plane, [""])
sketch12.MapMode = "FlatFace"
sketch12.AttachmentOffset = App.Placement(V(0, 0, 33.24), App.Rotation())
sketch12.addGeometry(Part.LineSegment(V(50, 0, 0), V(50, -10, 0)), False)
sketch12.addGeometry(Part.LineSegment(V(50, -10, 0), V(80, -10, 0)), False)
sketch12.addGeometry(Part.LineSegment(V(80, -10, 0), V(80, 0, 0)), False)
sketch12.addGeometry(Part.LineSegment(V(80, 0, 0), V(50, 0, 0)), False)
sketch12.addConstraint(Sketcher.Constraint("Coincident", 0, 2, 1, 1))
sketch12.addConstraint(Sketcher.Constraint("Coincident", 1, 2, 2, 1))
sketch12.addConstraint(Sketcher.Constraint("Coincident", 2, 2, 3, 1))
sketch12.addConstraint(Sketcher.Constraint("Coincident", 3, 2, 0, 1))
sketch12.addConstraint(Sketcher.Constraint("Vertical", 0))
sketch12.addConstraint(Sketcher.Constraint("Horizontal", 1))
sketch12.addConstraint(Sketcher.Constraint("Vertical", 2))
sketch12.addConstraint(Sketcher.Constraint("Horizontal", 3))
sketch12.addConstraint(Sketcher.Constraint("PointOnObject", 2, 2, -1))
sketch12.addConstraint(Sketcher.Constraint("DistanceY", 0, 2, 0, 1, Q("10 mm")))
sketch12.addConstraint(Sketcher.Constraint("DistanceX", 1, 1, 1, 2, Q("29.17 mm")))
sketch12.addConstraint(Sketcher.Constraint("DistanceX", -1, 1, 0, 2, Q("50.415 mm")))
sketch12.setExpression("Constraints[9]", "Params.sketch12_height")
sketch12.setExpression("Constraints[10]", "Params.sketch12_width")
pocket11 = doc.addObject("PartDesign::Pocket", "Pocket010")
body.addObject(pocket11)
pocket11.Profile = sketch12
pocket11.setExpression("Length", "Params.pocket11_length")

sketch13 = doc.addObject("Sketcher::SketchObject", "Sketch012")
body.addObject(sketch13)
sketch13.AttachmentSupport = (doc.XY_Plane, [""])
sketch13.MapMode = "FlatFace"
sketch13.addGeometry(Part.LineSegment(V(73.6, -100, 0), V(56.4, -100, 0)), False)
sketch13.addGeometry(Part.LineSegment(V(56.4, -100, 0), V(56.4, -23.5, 0)), False)
sketch13.addGeometry(Part.ArcOfCircle(Part.Circle(V(59.9, -23.5, 0), V(0, 0, 1), 3.5), math.radians(90), math.radians(180)), False)
sketch13.addGeometry(Part.LineSegment(V(59.9, -20, 0), V(70.1, -20, 0)), False)
sketch13.addGeometry(Part.ArcOfCircle(Part.Circle(V(70.1, -23.5, 0), V(0, 0, 1), 3.5), math.radians(0), math.radians(90)), False)
sketch13.addGeometry(Part.LineSegment(V(73.6, -23.5, 0), V(73.6, -100, 0)), False)
sketch13.addConstraint(Sketcher.Constraint("Coincident", 0, 2, 1, 1))
sketch13.addConstraint(Sketcher.Constraint("Tangent", 1, 2, 2, 2))
sketch13.addConstraint(Sketcher.Constraint("Tangent", 2, 1, 3, 1))
sketch13.addConstraint(Sketcher.Constraint("Tangent", 3, 2, 4, 2))
sketch13.addConstraint(Sketcher.Constraint("Tangent", 4, 1, 5, 1))
sketch13.addConstraint(Sketcher.Constraint("Coincident", 5, 2, 0, 1))
sketch13.addConstraint(Sketcher.Constraint("Horizontal", 0))
sketch13.addConstraint(Sketcher.Constraint("Vertical", 1))
sketch13.addConstraint(Sketcher.Constraint("Horizontal", 3))
sketch13.addConstraint(Sketcher.Constraint("Vertical", 5))
sketch13.addConstraint(Sketcher.Constraint("Equal", 2, 4))
sketch13.addConstraint(Sketcher.Constraint("Radius", 2, Q("3.5 mm")))
sketch13.addConstraint(Sketcher.Constraint("DistanceY", 1, 1, 1, 2, Q("76.5 mm")))
sketch13.addConstraint(Sketcher.Constraint("DistanceY", 0, 2, -1, 1, Q("100 mm")))
sketch13.addConstraint(Sketcher.Constraint("DistanceX", 0, 2, 0, 1, Q("17.17 mm")))
sketch13.addConstraint(Sketcher.Constraint("DistanceX", -1, 1, 2, 3, Q("59.915 mm")))
sketch13.setExpression("Constraints[11]", "Params.sketch13_radius")
sketch13.setExpression("Constraints[12]", "Params.sketch13_height")
sketch13.setExpression("Constraints[14]", "Params.sketch13_width")
pocket12 = doc.addObject("PartDesign::Pocket", "Pocket011")
body.addObject(pocket12)
pocket12.Profile = sketch13
pocket12.setExpression("Length", "Params.pocket12_length")
pocket12.Reversed = True

doc.recompute()
